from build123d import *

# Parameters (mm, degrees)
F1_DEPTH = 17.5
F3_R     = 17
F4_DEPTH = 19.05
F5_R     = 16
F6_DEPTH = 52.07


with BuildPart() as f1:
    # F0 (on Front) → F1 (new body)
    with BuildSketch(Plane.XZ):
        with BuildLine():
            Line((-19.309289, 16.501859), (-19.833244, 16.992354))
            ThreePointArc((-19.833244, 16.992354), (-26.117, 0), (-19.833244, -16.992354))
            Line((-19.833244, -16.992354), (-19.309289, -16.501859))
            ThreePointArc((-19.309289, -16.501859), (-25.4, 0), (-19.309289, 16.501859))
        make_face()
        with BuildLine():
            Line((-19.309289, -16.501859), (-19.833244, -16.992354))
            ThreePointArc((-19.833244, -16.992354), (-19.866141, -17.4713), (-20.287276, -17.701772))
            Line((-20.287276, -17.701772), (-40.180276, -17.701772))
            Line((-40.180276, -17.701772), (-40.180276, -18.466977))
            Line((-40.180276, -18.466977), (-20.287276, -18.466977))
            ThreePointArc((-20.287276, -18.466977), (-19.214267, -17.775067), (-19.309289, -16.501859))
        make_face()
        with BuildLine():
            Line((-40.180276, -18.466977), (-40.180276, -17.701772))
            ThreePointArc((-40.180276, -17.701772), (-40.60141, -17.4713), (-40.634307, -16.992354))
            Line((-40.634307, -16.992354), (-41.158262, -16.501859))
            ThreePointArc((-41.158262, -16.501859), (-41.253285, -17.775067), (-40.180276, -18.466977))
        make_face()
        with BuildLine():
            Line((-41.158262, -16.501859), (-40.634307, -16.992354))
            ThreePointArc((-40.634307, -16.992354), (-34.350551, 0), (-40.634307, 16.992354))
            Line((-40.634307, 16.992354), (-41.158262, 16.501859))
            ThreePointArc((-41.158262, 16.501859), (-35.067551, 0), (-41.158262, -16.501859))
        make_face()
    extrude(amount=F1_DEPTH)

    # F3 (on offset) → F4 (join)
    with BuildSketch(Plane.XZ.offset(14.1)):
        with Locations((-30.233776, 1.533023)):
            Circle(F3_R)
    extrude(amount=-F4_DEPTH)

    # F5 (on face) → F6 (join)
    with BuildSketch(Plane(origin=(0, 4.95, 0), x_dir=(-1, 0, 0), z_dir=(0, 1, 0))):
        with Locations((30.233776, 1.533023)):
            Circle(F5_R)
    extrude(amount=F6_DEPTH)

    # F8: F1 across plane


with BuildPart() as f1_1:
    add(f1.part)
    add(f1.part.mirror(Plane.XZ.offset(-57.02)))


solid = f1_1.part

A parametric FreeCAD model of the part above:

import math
import FreeCAD as App
import Part
import Sketcher
from FreeCAD import Vector

doc = App.newDocument("Part")
body = doc.addObject("PartDesign::Body", "Body")

# Sketch on XZ plane
sketch1 = doc.addObject("Sketcher::SketchObject", "Sketch")
body.addObject(sketch1)
sketch1.AttachmentSupport = (doc.XZ_Plane, [""])
sketch1.MapMode = "FlatFace"
sketch1.addGeometry([
    Part.LineSegment(Vector(-19.3, 16.5, 0), Vector(-19.8, 17, 0)),  # 0
    Part.ArcOfCircle(Part.Circle(Vector(0, 0, 0), Vector(0, 0, 1), 26.1), math.radians(139), math.radians(221)),  # 1
    Part.ArcOfCircle(Part.Circle(Vector(-20.3, -17.2, 0), Vector(0, 0, 1), 0.5), math.radians(-90), math.radians(25)),  # 2
    Part.LineSegment(Vector(-20.3, -17.7, 0), Vector(-40.2, -17.7, 0)),  # 3
    Part.ArcOfCircle(Part.Circle(Vector(-40.2, -17.2, 0), Vector(0, 0, 1), 0.5), math.radians(155), math.radians(270)),  # 4
    Part.ArcOfCircle(Part.Circle(Vector(-60.5, 0, 0), Vector(0, 0, 1), 26.1), math.radians(-41), math.radians(41)),  # 5
    Part.LineSegment(Vector(-40.6, 17, 0), Vector(-41.2, 16.5, 0)),  # 6
    Part.ArcOfCircle(Part.Circle(Vector(-60.5, 0, 0), Vector(0, 0, 1), 25.4), math.radians(-41), math.radians(41)),  # 7
    Part.ArcOfCircle(Part.Circle(Vector(-40.1, -17.2, 0), Vector(0, 0, 1), 1.2), math.radians(145), math.radians(268)),  # 8
    Part.LineSegment(Vector(-40.2, -18.5, 0), Vector(-20.3, -18.5, 0)),  # 9
    Part.ArcOfCircle(Part.Circle(Vector(-20.3, -17.2, 0), Vector(0, 0, 1), 1.2), math.radians(-88), math.radians(35)),  # 10
    Part.ArcOfCircle(Part.Circle(Vector(0, 0, 0), Vector(0, 0, 1), 25.4), math.radians(139), math.radians(221)),  # 11
], False)
sketch1.addConstraint([
    Sketcher.Constraint("Coincident", 0, 2, 1, 1),
    Sketcher.Constraint("Coincident", 1, 2, 2, 2),
    Sketcher.Constraint("Tangent", 2, 1, 3, 1),
    Sketcher.Constraint("Coincident", 3, 2, 4, 2),
    Sketcher.Constraint("Coincident", 4, 1, 5, 1),
    Sketcher.Constraint("Coincident", 5, 2, 6, 1),
    Sketcher.Constraint("Coincident", 6, 2, 7, 2),
    Sketcher.Constraint("Coincident", 7, 1, 8, 1),
    Sketcher.Constraint("Coincident", 8, 2, 9, 1),
    Sketcher.Constraint("Coincident", 9, 2, 10, 1),
    Sketcher.Constraint("Coincident", 10, 2, 11, 2),
    Sketcher.Constraint("Coincident", 11, 1, 0, 1),
    Sketcher.Constraint("Horizontal", 3),
    Sketcher.Constraint("Horizontal", 9),
    Sketcher.Constraint("Coincident", 1, 3, -1, 1),
    Sketcher.Constraint("Coincident", 11, 3, -1, 1),
    Sketcher.Constraint("Coincident", 7, 3, 5, 3),
    Sketcher.Constraint("Equal", 2, 4),
    Sketcher.Constraint("Equal", 1, 5),
    Sketcher.Constraint("Equal", 8, 10),
    Sketcher.Constraint("Equal", 7, 11),
    Sketcher.Constraint("Symmetric", 4, 1, 5, 2, -1),
    Sketcher.Constraint("Horizontal", 8, 3, 10, 3),
    Sketcher.Constraint("Horizontal", 1, 2, 4, 1),
    Sketcher.Constraint("Horizontal", 0, 2, 5, 2),
    Sketcher.Constraint("Horizontal", 7, 1, 10, 2),
    Sketcher.Constraint("Horizontal", 6, 2, 11, 1),
    Sketcher.Constraint("Vertical", 4, 3, 3, 2),
    Sketcher.Constraint("Vertical", 6, 2, 7, 1),
    Sketcher.Constraint("Vertical", 3, 2, 8, 2),
    Sketcher.Constraint("Radius", 2, 0.500001),
    Sketcher.Constraint("Radius", 7, 25.399999),
    Sketcher.Constraint("DistanceX", 3, 2, 3, 1, 19.893),
    Sketcher.Constraint("Radius", 8, 1.24941),
    Sketcher.Constraint("Radius", 1, 26.116998),
    Sketcher.Constraint("DistanceY", 2, 3, -1, 1, 17.201771),
    Sketcher.Constraint("DistanceX", 5, 3, -1, 1, 60.467549),
    Sketcher.Constraint("DistanceX", 8, 3, -1, 1, 40.13474),
    Sketcher.Constraint("DistanceY", -1, 1, 6, 2, 16.501859),
])
pad1 = doc.addObject("PartDesign::Pad", "Pad")
body.addObject(pad1)
pad1.Profile = sketch1
pad1.Length = 17.5

# Sketch on XZ plane
sketch2 = doc.addObject("Sketcher::SketchObject", "Sketch001")
body.addObject(sketch2)
sketch2.AttachmentSupport = (doc.XZ_Plane, [""])
sketch2.MapMode = "FlatFace"
sketch2.AttachmentOffset = App.Placement(Vector(0, 0, 14.1), App.Rotation())
sketch2.addGeometry(Part.Circle(Vector(-30, 2, 0), Vector(0, 0, 1), 17), False)
sketch2.addConstraint([
    Sketcher.Constraint("Diameter", 0, 34.0),
    Sketcher.Constraint("DistanceX", 0, 3, -1, 1, 30.233776),
    Sketcher.Constraint("DistanceY", -1, 1, 0, 3, 1.533023),
])
pad2 = doc.addObject("PartDesign::Pad", "Pad001")
body.addObject(pad2)
pad2.Profile = sketch2
pad2.Length = 19.05
pad2.Reversed = True

# Sketch on XZ plane
sketch3 = doc.addObject("Sketcher::SketchObject", "Sketch002")
body.addObject(sketch3)
sketch3.AttachmentSupport = (doc.XZ_Plane, [""])
sketch3.MapMode = "FlatFace"
sketch3.AttachmentOffset = App.Placement(Vector(0, 0, -4.95), App.Rotation())
sketch3.addGeometry(Part.Circle(Vector(-30, 2, 0), Vector(0, 0, 1), 16), False)
sketch3.addConstraint([
    Sketcher.Constraint("Diameter", 0, 32.0),
    Sketcher.Constraint("DistanceX", 0, 3, -1, 1, 30.233776),
    Sketcher.Constraint("DistanceY", -1, 1, 0, 3, 1.533023),
])
pad3 = doc.addObject("PartDesign::Pad", "Pad002")
body.addObject(pad3)
pad3.Profile = sketch3
pad3.Length = 52.07
pad3.Reversed = True
body2 = doc.addObject("PartDesign::Body", "Body001")
doc.recompute()

body2.BaseFeature = body
doc.recompute()

mirroring = doc.addObject("Part::Mirroring", "Mirroring")
mirroring.Source = body
mirroring.Base = Vector(0, 57.02, 0)
mirroring.Normal = Vector(0, -1, 0)
body3 = doc.addObject("PartDesign::Body", "Body002")
body3.BaseFeature = mirroring
boolean = doc.addObject("PartDesign::Boolean", "Boolean")
body2.addObject(boolean)
boolean.Type = "Fuse"
boolean.addObjects([body3])
doc.recompute()
mirroring.Visibility = False

doc.recompute()
